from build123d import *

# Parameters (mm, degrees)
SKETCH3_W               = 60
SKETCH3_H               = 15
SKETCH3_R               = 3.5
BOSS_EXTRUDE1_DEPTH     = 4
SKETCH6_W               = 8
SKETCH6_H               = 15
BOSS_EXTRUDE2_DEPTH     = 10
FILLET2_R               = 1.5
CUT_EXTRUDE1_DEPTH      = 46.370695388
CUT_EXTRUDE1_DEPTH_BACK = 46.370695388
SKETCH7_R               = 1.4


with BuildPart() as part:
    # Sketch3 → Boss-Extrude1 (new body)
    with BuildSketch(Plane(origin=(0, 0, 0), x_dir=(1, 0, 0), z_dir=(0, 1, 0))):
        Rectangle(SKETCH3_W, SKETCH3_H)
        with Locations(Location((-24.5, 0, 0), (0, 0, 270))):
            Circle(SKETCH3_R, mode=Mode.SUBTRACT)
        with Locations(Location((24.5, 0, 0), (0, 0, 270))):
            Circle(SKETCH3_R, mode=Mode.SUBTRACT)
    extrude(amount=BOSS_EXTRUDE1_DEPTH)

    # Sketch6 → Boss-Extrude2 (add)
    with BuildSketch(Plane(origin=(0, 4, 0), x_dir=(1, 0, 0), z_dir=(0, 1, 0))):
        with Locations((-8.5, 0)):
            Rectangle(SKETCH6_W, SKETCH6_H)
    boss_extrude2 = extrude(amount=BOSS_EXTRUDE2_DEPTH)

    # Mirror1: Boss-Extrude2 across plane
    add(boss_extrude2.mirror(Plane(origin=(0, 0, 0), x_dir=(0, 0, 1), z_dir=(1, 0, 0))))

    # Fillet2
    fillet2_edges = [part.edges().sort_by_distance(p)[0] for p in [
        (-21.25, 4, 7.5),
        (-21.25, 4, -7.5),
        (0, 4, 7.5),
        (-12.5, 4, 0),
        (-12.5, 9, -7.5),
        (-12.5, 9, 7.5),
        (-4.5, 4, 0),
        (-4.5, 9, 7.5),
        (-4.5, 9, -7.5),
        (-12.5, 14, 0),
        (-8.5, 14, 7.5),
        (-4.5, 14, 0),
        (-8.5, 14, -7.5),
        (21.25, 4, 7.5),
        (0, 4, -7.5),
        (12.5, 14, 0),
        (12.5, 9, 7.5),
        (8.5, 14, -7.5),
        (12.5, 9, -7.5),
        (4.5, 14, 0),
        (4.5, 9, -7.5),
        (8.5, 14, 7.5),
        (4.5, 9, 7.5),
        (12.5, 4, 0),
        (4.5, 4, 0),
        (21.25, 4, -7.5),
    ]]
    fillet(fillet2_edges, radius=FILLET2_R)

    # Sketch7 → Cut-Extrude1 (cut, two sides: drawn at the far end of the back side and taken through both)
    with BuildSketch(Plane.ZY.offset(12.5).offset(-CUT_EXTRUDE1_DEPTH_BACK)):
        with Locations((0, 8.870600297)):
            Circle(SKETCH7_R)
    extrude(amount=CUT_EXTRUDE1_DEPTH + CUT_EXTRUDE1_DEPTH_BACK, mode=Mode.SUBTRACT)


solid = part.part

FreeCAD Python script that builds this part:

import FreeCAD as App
import Part
import Sketcher
from FreeCAD import Vector
Q = App.Units.Quantity


def edges_at(feature, points):
    """Names of the edges that pass closest to the given points."""
    edges = feature.Shape.Edges
    near = lambda p: min(range(len(edges)), key=lambda i: edges[i].distToShape(Part.Vertex(*p))[0])
    return sorted({f"Edge{near(p) + 1}" for p in points})


def add_polygon(sketch, points):
    """Adds a closed chain of lines whose ends are joined by coincident constraints."""
    first, n = sketch.GeometryCount, len(points)
    for a, b in zip(points, points[1:] + points[:1]):
        sketch.addGeometry(Part.LineSegment(App.Vector(*a, 0), App.Vector(*b, 0)), False)
    for i in range(n):
        sketch.addConstraint(Sketcher.Constraint("Coincident", first + i, 2, first + (i + 1) % n, 1))

doc = App.newDocument("Part")
body = doc.addObject("PartDesign::Body", "Body")

sketch1 = body.newObject("Sketcher::SketchObject", "Sketch")
sketch1.AttachmentSupport = (doc.getObject("XZ_Plane"), [""])
sketch1.MapMode = "FlatFace"
add_polygon(sketch1, [(-30, -7.5), (-30, 7.5), (30, 7.5), (30, -7.5)])
sketch1.addGeometry(Part.Circle(Vector(-24.5, 0, 0), Vector(0, 0, 1), 3.5), False)
sketch1.addGeometry(Part.Circle(Vector(24.5, 0, 0), Vector(0, 0, 1), 3.5), False)
sketch1.addConstraint([
    Sketcher.Constraint("Vertical", 0),
    Sketcher.Constraint("Horizontal", 1),
    Sketcher.Constraint("Vertical", 2),
    Sketcher.Constraint("Horizontal", 3),
    Sketcher.Constraint("Equal", 4, 5),
    Sketcher.Constraint("Symmetric", 4, 3, 5, 3, -1, 1),
    Sketcher.Constraint("Symmetric", 0, 2, 2, 2, -1, 1),
    Sketcher.Constraint("PointOnObject", 4, 3, -1),
    Sketcher.Constraint("Diameter", 4, Q("7 mm")),
    Sketcher.Constraint("DistanceX", 1, 1, 1, 2, Q("60 mm")),
    Sketcher.Constraint("DistanceY", 0, 1, 0, 2, Q("15 mm")),
    Sketcher.Constraint("DistanceX", 4, 3, 5, 3, Q("49 mm")),
])
pad1 = body.newObject("PartDesign::Pad", "Pad")
pad1.Profile = sketch1
pad1.Length = 4
pad1.Reversed = True

sketch2 = body.newObject("Sketcher::SketchObject", "Sketch001")
sketch2.AttachmentSupport = (doc.getObject("XZ_Plane"), [""])
sketch2.MapMode = "FlatFace"
sketch2.AttachmentOffset = App.Placement(Vector(0, 0, -4), App.Rotation())
add_polygon(sketch2, [(-12.5, -7.5), (-12.5, 7.5), (-4.5, 7.5), (-4.5, -7.5)])
sketch2.addConstraint([
    Sketcher.Constraint("Vertical", 0),
    Sketcher.Constraint("Horizontal", 1),
    Sketcher.Constraint("Vertical", 2),
    Sketcher.Constraint("Horizontal", 3),
    Sketcher.Constraint("DistanceX", 1, 1, 1, 2, Q("8 mm")),
    Sketcher.Constraint("DistanceY", 0, 1, 0, 2, Q("15 mm")),
    Sketcher.Constraint("DistanceX", 0, 2, -1, 1, Q("12.5 mm")),
    Sketcher.Constraint("DistanceY", -1, 1, 0, 2, Q("7.5 mm")),
])
pad2 = body.newObject("PartDesign::Pad", "Pad001")
pad2.Profile = sketch2
pad2.Length = 10
pad2.Reversed = True
doc.recompute()

mirrored = body.newObject("PartDesign::Mirrored", "Mirrored")
mirrored.Originals = [pad2]
mirrored.MirrorPlane = (doc.getObject("YZ_Plane"), [""])
body.Tip = mirrored
doc.recompute()

fillet = body.newObject("PartDesign::Fillet", "Fillet")
fillet.Base = (mirrored, edges_at(mirrored, [
    (-21.25, 4, 7.5),
    (-21.25, 4, -7.5),
    (0, 4, 7.5),
    (-12.5, 4, 0),
    (-12.5, 9, -7.5),
    (-12.5, 9, 7.5),
    (-4.5, 4, 0),
    (-4.5, 9, 7.5),
    (-4.5, 9, -7.5),
    (-12.5, 14, 0),
    (-8.5, 14, 7.5),
    (-4.5, 14, 0),
    (-8.5, 14, -7.5),
    (21.25, 4, 7.5),
    (0, 4, -7.5),
    (12.5, 14, 0),
    (12.5, 9, 7.5),
    (8.5, 14, -7.5),
    (12.5, 9, -7.5),
    (4.5, 14, 0),
    (4.5, 9, -7.5),
    (8.5, 14, 7.5),
    (4.5, 9, 7.5),
    (12.5, 4, 0),
    (4.5, 4, 0),
    (21.25, 4, -7.5),
]))
fillet.Radius = 1.5

sketch3 = body.newObject("Sketcher::SketchObject", "Sketch002")
sketch3.AttachmentSupport = (doc.getObject("YZ_Plane"), [""])
sketch3.MapMode = "FlatFace"
sketch3.AttachmentOffset = App.Placement(Vector(0, 0, -12.5), App.Rotation())
sketch3.addGeometry(Part.Circle(Vector(8.8706, 0, 0), Vector(0, 0, 1), 1.4), False)
sketch3.addConstraint([
    Sketcher.Constraint("PointOnObject", 0, 3, -1),
    Sketcher.Constraint("Diameter", 0, Q("2.8 mm")),
    Sketcher.Constraint("DistanceX", -1, 1, 0, 3, Q("8.8706 mm")),
])
pocket1 = body.newObject("PartDesign::Pocket", "Pocket")
pocket1.Profile = sketch3
pocket1.Type = "ThroughAll"
pocket1.Midplane = True

doc.recompute()
